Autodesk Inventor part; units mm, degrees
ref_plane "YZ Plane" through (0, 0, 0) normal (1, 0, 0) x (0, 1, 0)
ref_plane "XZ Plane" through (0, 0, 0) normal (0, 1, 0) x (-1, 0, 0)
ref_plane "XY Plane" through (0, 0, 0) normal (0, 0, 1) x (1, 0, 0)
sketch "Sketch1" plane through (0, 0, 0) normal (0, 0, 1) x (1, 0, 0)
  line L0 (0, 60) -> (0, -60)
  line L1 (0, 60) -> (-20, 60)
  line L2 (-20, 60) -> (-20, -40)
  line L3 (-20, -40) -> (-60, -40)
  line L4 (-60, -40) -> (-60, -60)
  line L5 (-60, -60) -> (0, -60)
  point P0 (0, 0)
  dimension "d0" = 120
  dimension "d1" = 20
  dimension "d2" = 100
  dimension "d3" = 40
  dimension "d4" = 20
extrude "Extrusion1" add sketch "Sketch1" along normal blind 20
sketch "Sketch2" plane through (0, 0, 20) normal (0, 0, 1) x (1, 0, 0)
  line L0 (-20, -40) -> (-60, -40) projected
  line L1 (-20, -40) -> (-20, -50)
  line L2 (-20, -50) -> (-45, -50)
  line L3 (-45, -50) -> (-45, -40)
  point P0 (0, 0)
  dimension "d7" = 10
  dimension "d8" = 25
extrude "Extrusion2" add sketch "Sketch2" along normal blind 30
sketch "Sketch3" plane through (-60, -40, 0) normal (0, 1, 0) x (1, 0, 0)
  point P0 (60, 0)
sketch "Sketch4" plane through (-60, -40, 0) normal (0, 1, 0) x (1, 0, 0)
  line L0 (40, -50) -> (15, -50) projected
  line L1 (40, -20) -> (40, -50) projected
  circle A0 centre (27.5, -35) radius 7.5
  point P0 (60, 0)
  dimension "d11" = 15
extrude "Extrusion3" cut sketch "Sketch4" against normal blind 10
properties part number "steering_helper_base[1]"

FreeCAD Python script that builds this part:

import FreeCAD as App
import Part
import Sketcher


def add_polygon(sketch, points):
    """Adds a closed chain of lines whose ends are joined by coincident constraints."""
    first, n = sketch.GeometryCount, len(points)
    for a, b in zip(points, points[1:] + points[:1]):
        sketch.addGeometry(Part.LineSegment(App.Vector(*a, 0), App.Vector(*b, 0)), False)
    for i in range(n):
        sketch.addConstraint(Sketcher.Constraint("Coincident", first + i, 2, first + (i + 1) % n, 1))

doc = App.newDocument("Part")
body = doc.addObject("PartDesign::Body", "Body")

# Sketch on XY plane
sketch1 = body.newObject("Sketcher::SketchObject", "Sketch")
sketch1.AttachmentSupport = (doc.getObject("XY_Plane"), [""])
sketch1.MapMode = "FlatFace"
add_polygon(sketch1, [(0, -60), (0, 60), (-20, 60), (-20, -40), (-60, -40), (-60, -60)])  # lines 0-5
sketch1.addConstraint(Sketcher.Constraint("Vertical", 0))
sketch1.addConstraint(Sketcher.Constraint("Horizontal", 1))
sketch1.addConstraint(Sketcher.Constraint("Vertical", 2))
sketch1.addConstraint(Sketcher.Constraint("Horizontal", 3))
sketch1.addConstraint(Sketcher.Constraint("Vertical", 4))
sketch1.addConstraint(Sketcher.Constraint("Horizontal", 5))
sketch1.addConstraint(Sketcher.Constraint("Symmetric", 0, 2, 5, 2, -1, 1))
sketch1.addConstraint(Sketcher.Constraint("Equal", 1, 4))
sketch1.addConstraint(Sketcher.Constraint("DistanceX", 1, 2, 1, 1, 20.0))
sketch1.addConstraint(Sketcher.Constraint("DistanceX", 3, 2, 3, 1, 40.0))
sketch1.addConstraint(Sketcher.Constraint("DistanceY", 0, 1, 0, 2, 120.0))
pad1 = body.newObject("PartDesign::Pad", "Pad")
pad1.Profile = sketch1
pad1.Length = 20

# Sketch on XY plane
sketch2 = body.newObject("Sketcher::SketchObject", "Sketch001")
sketch2.AttachmentSupport = (doc.getObject("XY_Plane"), [""])
sketch2.MapMode = "FlatFace"
sketch2.AttachmentOffset = App.Placement(App.Vector(0, 0, 20), App.Rotation())
add_polygon(sketch2, [(-20, -50), (-20, -40), (-45, -40), (-45, -50)])  # lines 0-3
sketch2.addConstraint(Sketcher.Constraint("Vertical", 0))
sketch2.addConstraint(Sketcher.Constraint("Horizontal", 1))
sketch2.addConstraint(Sketcher.Constraint("Vertical", 2))
sketch2.addConstraint(Sketcher.Constraint("Horizontal", 3))
sketch2.addConstraint(Sketcher.Constraint("DistanceX", 1, 2, 1, 1, 25.0))
sketch2.addConstraint(Sketcher.Constraint("DistanceY", 0, 1, 0, 2, 10.0))
sketch2.addConstraint(Sketcher.Constraint("DistanceX", 0, 2, -1, 1, 20.0))
sketch2.addConstraint(Sketcher.Constraint("DistanceY", 0, 2, -1, 1, 40.0))
pad2 = body.newObject("PartDesign::Pad", "Pad001")
pad2.Profile = sketch2
pad2.Length = 30

# Sketch on XZ plane
sketch3 = body.newObject("Sketcher::SketchObject", "Sketch002")
sketch3.AttachmentSupport = (doc.getObject("XZ_Plane"), [""])
sketch3.MapMode = "FlatFace"
sketch3.AttachmentOffset = App.Placement(App.Vector(0, 0, 40), App.Rotation())
sketch3.addGeometry(Part.Circle(App.Vector(-32, 35, 0), App.Vector(0, 0, 1), 8), False)
sketch3.addConstraint(Sketcher.Constraint("Diameter", 0, 15.0))
sketch3.addConstraint(Sketcher.Constraint("DistanceY", -1, 1, 0, 3, 35.0))
sketch3.addConstraint(Sketcher.Constraint("DistanceX", 0, 3, -1, 1, 32.5))
pocket1 = body.newObject("PartDesign::Pocket", "Pocket")
pocket1.Profile = sketch3
pocket1.Length = 10
pocket1.Reversed = True

doc.recompute()
